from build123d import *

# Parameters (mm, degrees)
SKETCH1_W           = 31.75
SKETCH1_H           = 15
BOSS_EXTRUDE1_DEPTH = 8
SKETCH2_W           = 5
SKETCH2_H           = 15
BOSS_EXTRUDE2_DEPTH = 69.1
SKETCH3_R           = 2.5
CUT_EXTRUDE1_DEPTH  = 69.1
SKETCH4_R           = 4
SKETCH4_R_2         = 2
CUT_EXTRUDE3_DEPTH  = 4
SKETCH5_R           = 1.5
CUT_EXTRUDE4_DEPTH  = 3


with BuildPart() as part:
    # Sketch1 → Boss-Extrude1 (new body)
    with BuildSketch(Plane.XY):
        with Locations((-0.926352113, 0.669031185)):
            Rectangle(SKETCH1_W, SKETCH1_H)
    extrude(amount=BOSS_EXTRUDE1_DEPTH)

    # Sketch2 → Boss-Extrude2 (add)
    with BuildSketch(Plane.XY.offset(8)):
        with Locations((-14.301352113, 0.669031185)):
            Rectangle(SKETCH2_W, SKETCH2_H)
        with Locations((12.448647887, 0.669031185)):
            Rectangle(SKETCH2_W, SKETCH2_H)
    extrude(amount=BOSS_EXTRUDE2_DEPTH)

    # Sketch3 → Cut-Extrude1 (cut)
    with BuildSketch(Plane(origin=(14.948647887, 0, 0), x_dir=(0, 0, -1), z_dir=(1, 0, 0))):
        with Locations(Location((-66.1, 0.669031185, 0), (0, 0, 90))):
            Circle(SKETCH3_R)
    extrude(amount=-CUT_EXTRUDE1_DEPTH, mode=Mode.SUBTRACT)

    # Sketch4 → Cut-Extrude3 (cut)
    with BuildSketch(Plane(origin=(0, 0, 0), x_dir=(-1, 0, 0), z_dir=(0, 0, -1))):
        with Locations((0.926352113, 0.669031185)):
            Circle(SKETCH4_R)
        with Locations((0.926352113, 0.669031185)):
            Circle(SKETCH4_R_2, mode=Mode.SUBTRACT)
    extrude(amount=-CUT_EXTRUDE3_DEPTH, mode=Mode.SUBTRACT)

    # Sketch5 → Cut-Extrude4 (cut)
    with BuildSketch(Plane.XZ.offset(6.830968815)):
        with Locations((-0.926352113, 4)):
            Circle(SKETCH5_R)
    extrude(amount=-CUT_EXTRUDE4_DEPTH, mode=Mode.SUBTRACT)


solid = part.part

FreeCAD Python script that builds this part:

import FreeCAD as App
import Part
import Sketcher

doc = App.newDocument("Part")
body = doc.addObject("PartDesign::Body", "Body")

# Sketch on XY plane
sketch1 = doc.addObject("Sketcher::SketchObject", "Sketch")
body.addObject(sketch1)
sketch1.AttachmentSupport = (doc.XY_Plane, [""])
sketch1.MapMode = "FlatFace"
sketch1.addGeometry(Part.LineSegment(App.Vector(-17, 8, 0), App.Vector(-17, -7, 0)), False)
sketch1.addGeometry(Part.LineSegment(App.Vector(-17, -7, 0), App.Vector(15, -7, 0)), False)
sketch1.addGeometry(Part.LineSegment(App.Vector(15, -7, 0), App.Vector(15, 8, 0)), False)
sketch1.addGeometry(Part.LineSegment(App.Vector(15, 8, 0), App.Vector(-17, 8, 0)), False)
sketch1.addConstraint(Sketcher.Constraint("Coincident", 0, 2, 1, 1))
sketch1.addConstraint(Sketcher.Constraint("Coincident", 1, 2, 2, 1))
sketch1.addConstraint(Sketcher.Constraint("Coincident", 2, 2, 3, 1))
sketch1.addConstraint(Sketcher.Constraint("Coincident", 3, 2, 0, 1))
sketch1.addConstraint(Sketcher.Constraint("Vertical", 0))
sketch1.addConstraint(Sketcher.Constraint("Horizontal", 1))
sketch1.addConstraint(Sketcher.Constraint("Vertical", 2))
sketch1.addConstraint(Sketcher.Constraint("Horizontal", 3))
sketch1.addConstraint(Sketcher.Constraint("DistanceY", 0, 2, 0, 1, 15.0))
sketch1.addConstraint(Sketcher.Constraint("DistanceX", 1, 1, 1, 2, 31.75))
sketch1.addConstraint(Sketcher.Constraint("DistanceY", 0, 2, -1, 1, 6.830969))
sketch1.addConstraint(Sketcher.Constraint("DistanceX", 0, 2, -1, 1, 16.801352))
pad1 = doc.addObject("PartDesign::Pad", "Pad")
body.addObject(pad1)
pad1.Profile = sketch1
pad1.Length = 8

# Sketch on XY plane
sketch2 = doc.addObject("Sketcher::SketchObject", "Sketch001")
body.addObject(sketch2)
sketch2.AttachmentSupport = (doc.XY_Plane, [""])
sketch2.MapMode = "FlatFace"
sketch2.AttachmentOffset = App.Placement(App.Vector(0, 0, 8), App.Rotation())
sketch2.addGeometry(Part.LineSegment(App.Vector(-17, 8, 0), App.Vector(-17, -7, 0)), False)
sketch2.addGeometry(Part.LineSegment(App.Vector(-17, -7, 0), App.Vector(-12, -7, 0)), False)
sketch2.addGeometry(Part.LineSegment(App.Vector(-12, -7, 0), App.Vector(-12, 8, 0)), False)
sketch2.addGeometry(Part.LineSegment(App.Vector(-12, 8, 0), App.Vector(-17, 8, 0)), False)
sketch2.addGeometry(Part.LineSegment(App.Vector(10, 8, 0), App.Vector(10, -7, 0)), False)
sketch2.addGeometry(Part.LineSegment(App.Vector(10, -7, 0), App.Vector(15, -7, 0)), False)
sketch2.addGeometry(Part.LineSegment(App.Vector(15, -7, 0), App.Vector(15, 8, 0)), False)
sketch2.addGeometry(Part.LineSegment(App.Vector(15, 8, 0), App.Vector(10, 8, 0)), False)
sketch2.addConstraint(Sketcher.Constraint("Coincident", 0, 2, 1, 1))
sketch2.addConstraint(Sketcher.Constraint("Coincident", 1, 2, 2, 1))
sketch2.addConstraint(Sketcher.Constraint("Coincident", 2, 2, 3, 1))
sketch2.addConstraint(Sketcher.Constraint("Coincident", 3, 2, 0, 1))
sketch2.addConstraint(Sketcher.Constraint("Coincident", 4, 2, 5, 1))
sketch2.addConstraint(Sketcher.Constraint("Coincident", 5, 2, 6, 1))
sketch2.addConstraint(Sketcher.Constraint("Coincident", 6, 2, 7, 1))
sketch2.addConstraint(Sketcher.Constraint("Coincident", 7, 2, 4, 1))
sketch2.addConstraint(Sketcher.Constraint("Vertical", 0))
sketch2.addConstraint(Sketcher.Constraint("Horizontal", 1))
sketch2.addConstraint(Sketcher.Constraint("Vertical", 2))
sketch2.addConstraint(Sketcher.Constraint("Horizontal", 3))
sketch2.addConstraint(Sketcher.Constraint("Vertical", 4))
sketch2.addConstraint(Sketcher.Constraint("Horizontal", 5))
sketch2.addConstraint(Sketcher.Constraint("Vertical", 6))
sketch2.addConstraint(Sketcher.Constraint("Horizontal", 7))
sketch2.addConstraint(Sketcher.Constraint("Horizontal", 1, 2, 4, 2))
sketch2.addConstraint(Sketcher.Constraint("Horizontal", 3, 2, 6, 2))
sketch2.addConstraint(Sketcher.Constraint("Equal", 3, 5))
sketch2.addConstraint(Sketcher.Constraint("DistanceX", 1, 1, 1, 2, 5.0))
sketch2.addConstraint(Sketcher.Constraint("DistanceY", 0, 2, 0, 1, 15.0))
sketch2.addConstraint(Sketcher.Constraint("DistanceX", 1, 2, 4, 2, 21.75))
sketch2.addConstraint(Sketcher.Constraint("DistanceY", 0, 2, -1, 1, 6.830969))
sketch2.addConstraint(Sketcher.Constraint("DistanceX", 0, 2, -1, 1, 16.801352))
pad2 = doc.addObject("PartDesign::Pad", "Pad001")
body.addObject(pad2)
pad2.Profile = sketch2
pad2.Length = 69.1

# Sketch on YZ plane
sketch3 = doc.addObject("Sketcher::SketchObject", "Sketch002")
body.addObject(sketch3)
sketch3.AttachmentSupport = (doc.YZ_Plane, [""])
sketch3.MapMode = "FlatFace"
sketch3.AttachmentOffset = App.Placement(App.Vector(0, 0, 14.948648), App.Rotation())
sketch3.addGeometry(Part.Circle(App.Vector(0.7, 66.1, 0), App.Vector(0, 0, 1), 2.5), False)
sketch3.addConstraint(Sketcher.Constraint("Diameter", 0, 5.0))
sketch3.addConstraint(Sketcher.Constraint("DistanceY", -1, 1, 0, 3, 66.1))
sketch3.addConstraint(Sketcher.Constraint("DistanceX", -1, 1, 0, 3, 0.669031))
pocket1 = doc.addObject("PartDesign::Pocket", "Pocket")
body.addObject(pocket1)
pocket1.Profile = sketch3
pocket1.Length = 69.1

# Sketch on XY plane
sketch4 = doc.addObject("Sketcher::SketchObject", "Sketch003")
body.addObject(sketch4)
sketch4.AttachmentSupport = (doc.XY_Plane, [""])
sketch4.MapMode = "FlatFace"
sketch4.addGeometry(Part.Circle(App.Vector(-0.9, 0.7, 0), App.Vector(0, 0, 1), 4), False)
sketch4.addGeometry(Part.Circle(App.Vector(-0.9, 0.7, 0), App.Vector(0, 0, 1), 2), False)
sketch4.addConstraint(Sketcher.Constraint("Coincident", 1, 3, 0, 3))
sketch4.addConstraint(Sketcher.Constraint("Diameter", 0, 8.0))
sketch4.addConstraint(Sketcher.Constraint("Diameter", 1, 4.0))
sketch4.addConstraint(Sketcher.Constraint("DistanceY", -1, 1, 0, 3, 0.669031))
sketch4.addConstraint(Sketcher.Constraint("DistanceX", 0, 3, -1, 1, 0.926352))
pocket2 = doc.addObject("PartDesign::Pocket", "Pocket001")
body.addObject(pocket2)
pocket2.Profile = sketch4
pocket2.Length = 4
pocket2.Reversed = True

# Sketch on XZ plane
sketch5 = doc.addObject("Sketcher::SketchObject", "Sketch004")
body.addObject(sketch5)
sketch5.AttachmentSupport = (doc.XZ_Plane, [""])
sketch5.MapMode = "FlatFace"
sketch5.AttachmentOffset = App.Placement(App.Vector(0, 0, 6.830969), App.Rotation())
sketch5.addGeometry(Part.Circle(App.Vector(-0.9, 4, 0), App.Vector(0, 0, 1), 1.5), False)
sketch5.addConstraint(Sketcher.Constraint("Diameter", 0, 3.0))
sketch5.addConstraint(Sketcher.Constraint("DistanceY", -1, 1, 0, 3, 4.0))
sketch5.addConstraint(Sketcher.Constraint("DistanceX", 0, 3, -1, 1, 0.926352))
pocket3 = doc.addObject("PartDesign::Pocket", "Pocket002")
body.addObject(pocket3)
pocket3.Profile = sketch5
pocket3.Length = 3

doc.recompute()
